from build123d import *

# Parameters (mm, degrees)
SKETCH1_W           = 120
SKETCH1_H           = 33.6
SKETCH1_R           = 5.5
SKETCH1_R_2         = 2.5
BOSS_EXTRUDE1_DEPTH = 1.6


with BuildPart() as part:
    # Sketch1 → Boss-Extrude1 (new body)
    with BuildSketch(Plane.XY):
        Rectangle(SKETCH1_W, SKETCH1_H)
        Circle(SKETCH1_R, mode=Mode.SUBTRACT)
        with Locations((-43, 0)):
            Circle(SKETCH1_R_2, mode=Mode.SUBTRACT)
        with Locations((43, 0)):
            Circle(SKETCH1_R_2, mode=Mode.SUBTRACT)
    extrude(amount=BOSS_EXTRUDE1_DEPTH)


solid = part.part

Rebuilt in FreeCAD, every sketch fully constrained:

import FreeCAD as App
import Part
import Sketcher
from FreeCAD import Vector
Q = App.Units.Quantity

doc = App.newDocument("Part")
body = doc.addObject("PartDesign::Body", "Body")

sketch1 = doc.addObject("Sketcher::SketchObject", "Sketch")
body.addObject(sketch1)
sketch1.AttachmentSupport = (doc.XY_Plane, [""])
sketch1.MapMode = "FlatFace"
sketch1.addGeometry([
    Part.LineSegment(Vector(-60, 16.8, 0), Vector(-60, -16.8, 0)),
    Part.LineSegment(Vector(-60, -16.8, 0), Vector(60, -16.8, 0)),
    Part.LineSegment(Vector(60, -16.8, 0), Vector(60, 16.8, 0)),
    Part.LineSegment(Vector(60, 16.8, 0), Vector(-60, 16.8, 0)),
    Part.Circle(Vector(-43, 0, 0), Vector(0, 0, 1), 2.5),
    Part.Circle(Vector(0, 0, 0), Vector(0, 0, 1), 5.5),
    Part.Circle(Vector(43, 0, 0), Vector(0, 0, 1), 2.5),
], False)
sketch1.addConstraint([
    Sketcher.Constraint("Coincident", 0, 2, 1, 1),
    Sketcher.Constraint("Coincident", 1, 2, 2, 1),
    Sketcher.Constraint("Coincident", 2, 2, 3, 1),
    Sketcher.Constraint("Coincident", 3, 2, 0, 1),
    Sketcher.Constraint("Vertical", 0),
    Sketcher.Constraint("Horizontal", 1),
    Sketcher.Constraint("Vertical", 2),
    Sketcher.Constraint("Horizontal", 3),
    Sketcher.Constraint("Coincident", 5, 3, -1, 1),
    Sketcher.Constraint("Equal", 4, 6),
    Sketcher.Constraint("Symmetric", 4, 3, 6, 3, -1, 1),
    Sketcher.Constraint("Symmetric", 0, 2, 2, 2, -1, 1),
    Sketcher.Constraint("PointOnObject", 4, 3, -1),
    Sketcher.Constraint("Diameter", 4, Q("5 mm")),
    Sketcher.Constraint("Diameter", 5, Q("11 mm")),
    Sketcher.Constraint("DistanceX", 1, 1, 1, 2, Q("120 mm")),
    Sketcher.Constraint("DistanceY", 0, 2, 0, 1, Q("33.6 mm")),
    Sketcher.Constraint("DistanceX", 4, 3, -1, 1, Q("43 mm")),
])
pad1 = doc.addObject("PartDesign::Pad", "Pad")
body.addObject(pad1)
pad1.Profile = sketch1
pad1.Length = 1.6

doc.recompute()
